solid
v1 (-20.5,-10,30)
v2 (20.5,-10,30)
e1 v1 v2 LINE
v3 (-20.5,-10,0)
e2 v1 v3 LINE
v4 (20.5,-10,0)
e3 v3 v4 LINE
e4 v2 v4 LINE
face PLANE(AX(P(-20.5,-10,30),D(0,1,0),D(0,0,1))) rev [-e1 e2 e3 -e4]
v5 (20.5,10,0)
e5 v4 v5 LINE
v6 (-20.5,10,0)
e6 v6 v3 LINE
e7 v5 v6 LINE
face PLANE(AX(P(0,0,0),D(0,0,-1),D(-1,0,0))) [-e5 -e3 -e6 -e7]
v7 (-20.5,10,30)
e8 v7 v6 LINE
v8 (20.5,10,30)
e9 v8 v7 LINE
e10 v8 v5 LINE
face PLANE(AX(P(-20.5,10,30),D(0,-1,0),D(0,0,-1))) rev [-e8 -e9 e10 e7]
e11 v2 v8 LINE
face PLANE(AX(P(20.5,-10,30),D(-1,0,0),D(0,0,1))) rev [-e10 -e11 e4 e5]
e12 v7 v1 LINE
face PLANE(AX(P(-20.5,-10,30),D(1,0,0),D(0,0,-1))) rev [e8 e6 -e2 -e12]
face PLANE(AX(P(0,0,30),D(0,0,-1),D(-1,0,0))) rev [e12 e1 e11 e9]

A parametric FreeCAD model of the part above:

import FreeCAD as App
import Part
import Sketcher
from FreeCAD import Vector
Q = App.Units.Quantity


def add_polygon(sketch, points):
    """Adds a closed chain of lines whose ends are joined by coincident constraints."""
    first, n = sketch.GeometryCount, len(points)
    for a, b in zip(points, points[1:] + points[:1]):
        sketch.addGeometry(Part.LineSegment(App.Vector(*a, 0), App.Vector(*b, 0)), False)
    for i in range(n):
        sketch.addConstraint(Sketcher.Constraint("Coincident", first + i, 2, first + (i + 1) % n, 1))

doc = App.newDocument("Part")
body = doc.addObject("PartDesign::Body", "Body")

# Sketch on XY plane
sketch1 = body.newObject("Sketcher::SketchObject", "Sketch")
sketch1.AttachmentSupport = (doc.getObject("XY_Plane"), [""])
sketch1.MapMode = "FlatFace"
add_polygon(sketch1, [(-20, 10), (-20, -10), (20, -10), (20, 10)])  # lines 0-3
sketch1.addConstraint([
    Sketcher.Constraint("Vertical", 0),
    Sketcher.Constraint("Horizontal", 1),
    Sketcher.Constraint("Vertical", 2),
    Sketcher.Constraint("Horizontal", 3),
    Sketcher.Constraint("Symmetric", 0, 2, 2, 2, -1, 1),
    Sketcher.Constraint("DistanceX", 1, 1, 1, 2, Q("41 mm")),
    Sketcher.Constraint("DistanceY", 0, 2, 0, 1, Q("20 mm")),
])
pad1 = body.newObject("PartDesign::Pad", "Pad")
pad1.Profile = sketch1
pad1.Length = 30

doc.recompute()
